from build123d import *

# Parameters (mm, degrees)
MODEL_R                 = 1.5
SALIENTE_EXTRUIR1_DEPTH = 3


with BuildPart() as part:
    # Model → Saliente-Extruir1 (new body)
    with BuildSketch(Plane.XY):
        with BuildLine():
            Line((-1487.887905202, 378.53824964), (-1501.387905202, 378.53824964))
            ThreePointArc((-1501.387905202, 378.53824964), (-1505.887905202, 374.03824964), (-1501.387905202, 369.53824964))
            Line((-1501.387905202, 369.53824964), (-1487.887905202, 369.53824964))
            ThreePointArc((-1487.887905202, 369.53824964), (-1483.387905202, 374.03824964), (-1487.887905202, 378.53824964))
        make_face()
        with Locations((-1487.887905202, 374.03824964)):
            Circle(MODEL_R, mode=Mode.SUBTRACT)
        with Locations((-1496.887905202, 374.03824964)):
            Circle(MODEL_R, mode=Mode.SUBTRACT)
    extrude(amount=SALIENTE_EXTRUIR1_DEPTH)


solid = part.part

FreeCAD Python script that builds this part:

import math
import FreeCAD as App
import Part
import Sketcher

doc = App.newDocument("Part")
params = doc.addObject("Spreadsheet::Sheet", "Params")
for row, (alias, value) in enumerate([
    ("sketch1_diameter", "3 mm"),
    ("sketch1_radius", "4.5 mm"),
    ("sketch1_width", "13.5 mm"),
    ("pad1_length", "3 mm"),
], start=1):
    params.set(f"A{row}", alias)
    params.set(f"B{row}", "=" + value)
    params.setAlias(f"B{row}", alias)

body = doc.addObject("PartDesign::Body", "Body")

# Sketch on XY plane
sketch1 = body.newObject("Sketcher::SketchObject", "Sketch")
sketch1.AttachmentSupport = (doc.getObject("XY_Plane"), [""])
sketch1.MapMode = "FlatFace"
sketch1.addGeometry([
    Part.LineSegment(App.Vector(-1487.9, 378.5, 0), App.Vector(-1501.4, 378.5, 0)),  # 0
    Part.ArcOfCircle(Part.Circle(App.Vector(-1501.4, 374, 0), App.Vector(0, 0, 1), 4.5), math.radians(90), math.radians(270)),  # 1
    Part.LineSegment(App.Vector(-1501.4, 369.5, 0), App.Vector(-1487.9, 369.5, 0)),  # 2
    Part.ArcOfCircle(Part.Circle(App.Vector(-1487.9, 374, 0), App.Vector(0, 0, 1), 4.5), math.radians(-90), math.radians(90)),  # 3
    Part.Circle(App.Vector(-1496.9, 374, 0), App.Vector(0, 0, 1), 1.5),  # 4
    Part.Circle(App.Vector(-1487.9, 374, 0), App.Vector(0, 0, 1), 1.5),  # 5
], False)
sketch1.addConstraint([
    Sketcher.Constraint("Tangent", 0, 2, 1, 1),
    Sketcher.Constraint("Tangent", 1, 2, 2, 1),
    Sketcher.Constraint("Tangent", 2, 2, 3, 1),
    Sketcher.Constraint("Tangent", 3, 2, 0, 1),
    Sketcher.Constraint("Horizontal", 0),
    Sketcher.Constraint("Horizontal", 2),
    Sketcher.Constraint("Coincident", 5, 3, 3, 3),
    Sketcher.Constraint("Equal", 4, 5),
    Sketcher.Constraint("Horizontal", 3, 3, 4, 3),
    Sketcher.Constraint("Diameter", 4, 3.0),
    Sketcher.Constraint("Radius", 1, 4.5),
    Sketcher.Constraint("DistanceX", 0, 2, 0, 1, 13.5),
    Sketcher.Constraint("DistanceX", 4, 3, 3, 3, 9.0),
    Sketcher.Constraint("DistanceY", -1, 1, 1, 3, 374.03825),
    Sketcher.Constraint("DistanceX", 1, 3, -1, 1, 1501.387905),
])
sketch1.setExpression("Constraints[9]", "Params.sketch1_diameter")
sketch1.setExpression("Constraints[10]", "Params.sketch1_radius")
sketch1.setExpression("Constraints[11]", "Params.sketch1_width")
pad1 = body.newObject("PartDesign::Pad", "Pad")
pad1.Profile = sketch1
pad1.setExpression("Length", "Params.pad1_length")

doc.recompute()
